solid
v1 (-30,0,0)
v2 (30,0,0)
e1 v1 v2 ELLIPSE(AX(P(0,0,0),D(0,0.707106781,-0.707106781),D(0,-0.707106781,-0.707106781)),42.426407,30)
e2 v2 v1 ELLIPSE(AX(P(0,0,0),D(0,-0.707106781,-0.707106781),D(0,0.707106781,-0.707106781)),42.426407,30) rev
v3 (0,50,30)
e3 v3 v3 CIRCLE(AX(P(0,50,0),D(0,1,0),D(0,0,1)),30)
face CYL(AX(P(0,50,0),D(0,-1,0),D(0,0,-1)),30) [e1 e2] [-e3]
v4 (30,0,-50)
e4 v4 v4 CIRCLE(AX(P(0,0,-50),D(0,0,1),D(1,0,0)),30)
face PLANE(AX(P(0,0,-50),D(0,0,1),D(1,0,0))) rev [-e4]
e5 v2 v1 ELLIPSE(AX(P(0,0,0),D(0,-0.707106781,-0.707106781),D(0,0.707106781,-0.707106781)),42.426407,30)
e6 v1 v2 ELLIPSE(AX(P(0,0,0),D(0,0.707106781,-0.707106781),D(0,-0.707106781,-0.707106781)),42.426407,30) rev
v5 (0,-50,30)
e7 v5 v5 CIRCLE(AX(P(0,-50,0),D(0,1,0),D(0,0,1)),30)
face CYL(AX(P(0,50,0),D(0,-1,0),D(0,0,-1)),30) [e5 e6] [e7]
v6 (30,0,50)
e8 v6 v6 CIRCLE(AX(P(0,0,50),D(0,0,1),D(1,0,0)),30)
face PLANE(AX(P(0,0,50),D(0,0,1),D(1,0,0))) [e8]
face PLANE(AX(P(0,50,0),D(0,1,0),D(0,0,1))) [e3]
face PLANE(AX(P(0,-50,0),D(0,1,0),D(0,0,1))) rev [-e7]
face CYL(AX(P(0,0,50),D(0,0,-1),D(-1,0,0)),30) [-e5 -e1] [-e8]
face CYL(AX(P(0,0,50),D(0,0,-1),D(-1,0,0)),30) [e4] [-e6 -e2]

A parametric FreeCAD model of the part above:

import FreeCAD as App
import Part
import Sketcher
from FreeCAD import Vector

doc = App.newDocument("Part")
body = doc.addObject("PartDesign::Body", "Body")

sketch1 = body.newObject("Sketcher::SketchObject", "Sketch")
sketch1.AttachmentSupport = (doc.getObject("XY_Plane"), [""])
sketch1.MapMode = "FlatFace"
sketch1.addGeometry(Part.Circle(Vector(0, 0, 0), Vector(0, 0, 1), 30), False)
sketch1.addConstraint([
    Sketcher.Constraint("Coincident", 0, 3, -1, 1),
    Sketcher.Constraint("Diameter", 0, 60.0),
])
pad1 = body.newObject("PartDesign::Pad", "Pad")
pad1.Profile = sketch1
pad1.Length = 100
pad1.Midplane = True

sketch2 = body.newObject("Sketcher::SketchObject", "Sketch001")
sketch2.AttachmentSupport = (doc.getObject("XZ_Plane"), [""])
sketch2.MapMode = "FlatFace"
sketch2.addGeometry(Part.Circle(Vector(0, 0, 0), Vector(0, 0, 1), 30), False)
sketch2.addConstraint([
    Sketcher.Constraint("Coincident", 0, 3, -1, 1),
    Sketcher.Constraint("Diameter", 0, 60.0),
])
pad2 = body.newObject("PartDesign::Pad", "Pad001")
pad2.Profile = sketch2
pad2.Length = 100
pad2.Midplane = True

doc.recompute()
